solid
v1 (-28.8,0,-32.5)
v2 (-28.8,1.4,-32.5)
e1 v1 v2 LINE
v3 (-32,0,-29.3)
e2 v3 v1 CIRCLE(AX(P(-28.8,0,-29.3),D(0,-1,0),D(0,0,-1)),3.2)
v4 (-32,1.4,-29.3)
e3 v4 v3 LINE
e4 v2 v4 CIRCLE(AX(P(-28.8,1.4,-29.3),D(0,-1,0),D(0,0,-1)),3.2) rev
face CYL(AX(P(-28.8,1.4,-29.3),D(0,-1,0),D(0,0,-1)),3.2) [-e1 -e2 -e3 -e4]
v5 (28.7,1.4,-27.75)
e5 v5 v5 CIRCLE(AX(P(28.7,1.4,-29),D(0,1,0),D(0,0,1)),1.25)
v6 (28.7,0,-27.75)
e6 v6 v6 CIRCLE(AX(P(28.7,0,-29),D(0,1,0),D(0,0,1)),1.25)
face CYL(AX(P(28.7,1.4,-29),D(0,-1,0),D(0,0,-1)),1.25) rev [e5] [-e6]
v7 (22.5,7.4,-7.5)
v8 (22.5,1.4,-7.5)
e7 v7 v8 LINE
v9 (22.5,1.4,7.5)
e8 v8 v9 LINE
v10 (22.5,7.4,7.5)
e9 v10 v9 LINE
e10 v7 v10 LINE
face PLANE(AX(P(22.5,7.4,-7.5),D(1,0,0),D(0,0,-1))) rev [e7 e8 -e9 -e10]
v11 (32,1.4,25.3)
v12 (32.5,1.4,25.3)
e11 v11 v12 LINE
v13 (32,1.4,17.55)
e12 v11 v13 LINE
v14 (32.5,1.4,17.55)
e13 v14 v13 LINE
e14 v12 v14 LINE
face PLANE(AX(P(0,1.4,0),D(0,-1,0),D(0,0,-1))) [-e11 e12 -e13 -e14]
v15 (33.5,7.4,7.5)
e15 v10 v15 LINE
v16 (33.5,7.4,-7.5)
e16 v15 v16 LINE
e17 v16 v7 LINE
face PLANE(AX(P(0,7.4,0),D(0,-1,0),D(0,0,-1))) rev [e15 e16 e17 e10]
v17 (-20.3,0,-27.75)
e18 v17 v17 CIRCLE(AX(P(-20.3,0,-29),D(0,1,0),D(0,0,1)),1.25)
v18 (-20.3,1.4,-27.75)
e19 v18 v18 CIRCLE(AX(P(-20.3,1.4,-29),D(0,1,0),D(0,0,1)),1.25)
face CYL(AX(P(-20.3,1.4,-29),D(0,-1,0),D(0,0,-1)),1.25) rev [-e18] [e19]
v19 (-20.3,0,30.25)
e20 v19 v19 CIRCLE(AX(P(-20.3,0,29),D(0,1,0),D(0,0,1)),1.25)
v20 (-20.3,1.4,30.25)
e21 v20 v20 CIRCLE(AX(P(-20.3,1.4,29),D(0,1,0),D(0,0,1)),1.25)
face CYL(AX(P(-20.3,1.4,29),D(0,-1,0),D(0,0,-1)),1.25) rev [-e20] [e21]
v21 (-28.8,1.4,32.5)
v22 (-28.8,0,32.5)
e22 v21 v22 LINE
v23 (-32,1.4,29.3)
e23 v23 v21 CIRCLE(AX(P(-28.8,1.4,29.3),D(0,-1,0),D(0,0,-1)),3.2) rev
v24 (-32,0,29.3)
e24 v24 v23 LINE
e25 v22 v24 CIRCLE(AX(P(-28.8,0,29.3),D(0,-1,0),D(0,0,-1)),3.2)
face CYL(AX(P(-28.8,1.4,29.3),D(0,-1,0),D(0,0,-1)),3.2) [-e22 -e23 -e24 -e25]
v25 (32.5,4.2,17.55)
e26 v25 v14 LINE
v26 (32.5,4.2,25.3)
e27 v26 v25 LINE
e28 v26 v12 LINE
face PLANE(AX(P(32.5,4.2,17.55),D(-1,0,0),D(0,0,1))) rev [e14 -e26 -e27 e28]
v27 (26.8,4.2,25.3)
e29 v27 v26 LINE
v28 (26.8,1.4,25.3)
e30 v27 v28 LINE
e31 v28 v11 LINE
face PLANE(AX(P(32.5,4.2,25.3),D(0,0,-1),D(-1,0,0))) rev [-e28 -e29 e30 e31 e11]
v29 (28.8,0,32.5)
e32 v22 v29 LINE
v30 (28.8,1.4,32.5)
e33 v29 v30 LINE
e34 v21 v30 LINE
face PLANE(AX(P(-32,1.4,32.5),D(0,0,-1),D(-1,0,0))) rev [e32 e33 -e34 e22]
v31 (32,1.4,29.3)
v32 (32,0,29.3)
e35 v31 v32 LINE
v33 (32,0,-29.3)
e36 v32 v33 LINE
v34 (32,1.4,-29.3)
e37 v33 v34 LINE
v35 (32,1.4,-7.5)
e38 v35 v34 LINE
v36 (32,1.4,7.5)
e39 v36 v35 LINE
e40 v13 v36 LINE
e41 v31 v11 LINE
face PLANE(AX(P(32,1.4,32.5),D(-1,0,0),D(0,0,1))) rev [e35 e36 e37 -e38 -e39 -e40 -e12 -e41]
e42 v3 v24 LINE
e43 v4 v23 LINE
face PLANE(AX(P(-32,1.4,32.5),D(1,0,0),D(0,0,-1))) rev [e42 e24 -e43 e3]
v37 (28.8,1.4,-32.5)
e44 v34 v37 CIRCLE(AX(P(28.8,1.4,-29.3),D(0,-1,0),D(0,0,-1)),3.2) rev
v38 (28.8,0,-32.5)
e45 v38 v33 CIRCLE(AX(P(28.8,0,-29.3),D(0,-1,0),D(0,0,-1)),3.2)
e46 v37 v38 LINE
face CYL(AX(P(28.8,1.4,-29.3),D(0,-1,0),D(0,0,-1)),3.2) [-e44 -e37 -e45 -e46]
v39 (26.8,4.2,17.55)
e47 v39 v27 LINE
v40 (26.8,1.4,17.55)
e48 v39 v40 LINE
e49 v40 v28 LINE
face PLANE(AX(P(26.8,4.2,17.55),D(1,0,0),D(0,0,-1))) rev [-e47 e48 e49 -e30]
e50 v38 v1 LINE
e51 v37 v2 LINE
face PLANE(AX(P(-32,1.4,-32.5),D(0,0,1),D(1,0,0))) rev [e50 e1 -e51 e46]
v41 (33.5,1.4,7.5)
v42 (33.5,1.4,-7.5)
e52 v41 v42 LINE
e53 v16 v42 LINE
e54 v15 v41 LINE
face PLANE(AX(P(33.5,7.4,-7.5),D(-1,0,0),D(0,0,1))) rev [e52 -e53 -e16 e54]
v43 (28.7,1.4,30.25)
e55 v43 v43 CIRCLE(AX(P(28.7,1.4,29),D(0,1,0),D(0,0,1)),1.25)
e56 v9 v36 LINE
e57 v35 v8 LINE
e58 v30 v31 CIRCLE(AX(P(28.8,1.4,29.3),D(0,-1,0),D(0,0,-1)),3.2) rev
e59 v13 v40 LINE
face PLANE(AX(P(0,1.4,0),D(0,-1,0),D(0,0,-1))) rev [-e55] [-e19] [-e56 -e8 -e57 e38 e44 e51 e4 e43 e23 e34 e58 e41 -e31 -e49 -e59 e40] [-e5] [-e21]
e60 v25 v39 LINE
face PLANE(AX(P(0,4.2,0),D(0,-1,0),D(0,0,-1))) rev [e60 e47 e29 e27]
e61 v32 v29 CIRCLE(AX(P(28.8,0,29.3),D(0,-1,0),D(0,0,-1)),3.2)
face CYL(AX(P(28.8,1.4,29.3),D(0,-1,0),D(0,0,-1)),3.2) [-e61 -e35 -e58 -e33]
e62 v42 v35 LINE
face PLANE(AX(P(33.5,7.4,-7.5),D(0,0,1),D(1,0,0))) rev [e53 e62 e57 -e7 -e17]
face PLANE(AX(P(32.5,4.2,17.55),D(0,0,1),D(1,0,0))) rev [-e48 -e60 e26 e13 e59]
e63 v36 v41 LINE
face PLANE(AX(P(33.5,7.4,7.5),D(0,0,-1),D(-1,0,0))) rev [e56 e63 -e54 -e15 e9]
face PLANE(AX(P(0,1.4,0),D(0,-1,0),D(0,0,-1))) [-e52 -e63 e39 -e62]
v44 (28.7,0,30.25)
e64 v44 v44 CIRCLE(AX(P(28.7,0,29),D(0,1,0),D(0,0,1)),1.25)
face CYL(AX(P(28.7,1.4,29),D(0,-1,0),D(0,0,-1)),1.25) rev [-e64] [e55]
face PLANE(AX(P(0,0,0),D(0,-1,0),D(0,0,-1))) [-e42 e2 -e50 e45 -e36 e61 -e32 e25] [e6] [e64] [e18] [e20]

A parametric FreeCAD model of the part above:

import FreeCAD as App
import Part
import Sketcher
from FreeCAD import Vector


def edges_at(feature, points):
    """Names of the edges that pass closest to the given points."""
    edges = feature.Shape.Edges
    near = lambda p: min(range(len(edges)), key=lambda i: edges[i].distToShape(Part.Vertex(*p))[0])
    return sorted({f"Edge{near(p) + 1}" for p in points})

doc = App.newDocument("Part")
params = doc.addObject("Spreadsheet::Sheet", "Params")
for row, (alias, value) in enumerate([
    ("sketch1_diameter", "2.5 mm"),
    ("sketch1_width", "64 mm"),
    ("sketch1_height", "65 mm"),
    ("pad1_length", "1.4 mm"),
    ("sketch2_width", "11 mm"),
    ("sketch2_height", "15 mm"),
    ("pad2_length", "6 mm"),
    ("sketch3_width", "5.7 mm"),
    ("sketch3_height", "7.75 mm"),
    ("pad3_length", "2.8 mm"),
    ("fillet_radius", "3.2 mm"),
], start=1):
    params.set(f"A{row}", alias)
    params.set(f"B{row}", "=" + value)
    params.setAlias(f"B{row}", alias)

body = doc.addObject("PartDesign::Body", "Body")

# Sketch on XZ plane
sketch1 = doc.addObject("Sketcher::SketchObject", "Sketch")
body.addObject(sketch1)
sketch1.AttachmentSupport = (doc.XZ_Plane, [""])
sketch1.MapMode = "FlatFace"
sketch1.addGeometry([
    Part.LineSegment(Vector(-32, -32.5, 0), Vector(-32, 32.5, 0)),  # 0
    Part.LineSegment(Vector(-32, 32.5, 0), Vector(32, 32.5, 0)),  # 1
    Part.LineSegment(Vector(32, 32.5, 0), Vector(32, -32.5, 0)),  # 2
    Part.LineSegment(Vector(32, -32.5, 0), Vector(-32, -32.5, 0)),  # 3
    Part.Circle(Vector(-20.3, 29, 0), Vector(0, 0, 1), 1.25),  # 4
    Part.Circle(Vector(28.7, 29, 0), Vector(0, 0, 1), 1.25),  # 5
    Part.Circle(Vector(-20.3, -29, 0), Vector(0, 0, 1), 1.25),  # 6
    Part.Circle(Vector(28.7, -29, 0), Vector(0, 0, 1), 1.25),  # 7
], False)
sketch1.addConstraint([
    Sketcher.Constraint("Coincident", 0, 2, 1, 1),
    Sketcher.Constraint("Coincident", 1, 2, 2, 1),
    Sketcher.Constraint("Coincident", 2, 2, 3, 1),
    Sketcher.Constraint("Coincident", 3, 2, 0, 1),
    Sketcher.Constraint("Vertical", 0),
    Sketcher.Constraint("Horizontal", 1),
    Sketcher.Constraint("Vertical", 2),
    Sketcher.Constraint("Horizontal", 3),
    Sketcher.Constraint("Equal", 4, 5),
    Sketcher.Constraint("Equal", 5, 6),
    Sketcher.Constraint("Equal", 6, 7),
    Sketcher.Constraint("Symmetric", 0, 2, 2, 2, -1, 1),
    Sketcher.Constraint("Symmetric", 4, 3, 6, 3, -1),
    Sketcher.Constraint("Symmetric", 5, 3, 7, 3, -1),
    Sketcher.Constraint("Horizontal", 4, 3, 5, 3),
    Sketcher.Constraint("Diameter", 4, 2.5),
    Sketcher.Constraint("DistanceX", 1, 1, 1, 2, 64.0),
    Sketcher.Constraint("DistanceY", 0, 1, 0, 2, 65.0),
    Sketcher.Constraint("DistanceY", -1, 1, 4, 3, 29.0),
    Sketcher.Constraint("DistanceX", 4, 3, 5, 3, 49.0),
    Sketcher.Constraint("DistanceX", 4, 3, -1, 1, 20.3),
])
sketch1.setExpression("Constraints[15]", "Params.sketch1_diameter")
sketch1.setExpression("Constraints[16]", "Params.sketch1_width")
sketch1.setExpression("Constraints[17]", "Params.sketch1_height")
pad1 = doc.addObject("PartDesign::Pad", "Pad")
body.addObject(pad1)
pad1.Profile = sketch1
pad1.setExpression("Length", "Params.pad1_length")
pad1.Reversed = True

# Sketch on XZ plane
sketch2 = doc.addObject("Sketcher::SketchObject", "Sketch001")
body.addObject(sketch2)
sketch2.AttachmentSupport = (doc.XZ_Plane, [""])
sketch2.MapMode = "FlatFace"
sketch2.AttachmentOffset = App.Placement(Vector(0, 0, -1.4), App.Rotation())
sketch2.addGeometry([
    Part.LineSegment(Vector(22.5, -7.5, 0), Vector(22.5, 7.5, 0)),
    Part.LineSegment(Vector(22.5, 7.5, 0), Vector(33.5, 7.5, 0)),
    Part.LineSegment(Vector(33.5, 7.5, 0), Vector(33.5, -7.5, 0)),
    Part.LineSegment(Vector(33.5, -7.5, 0), Vector(22.5, -7.5, 0)),
], False)
sketch2.addConstraint([
    Sketcher.Constraint("Coincident", 0, 2, 1, 1),
    Sketcher.Constraint("Coincident", 1, 2, 2, 1),
    Sketcher.Constraint("Coincident", 2, 2, 3, 1),
    Sketcher.Constraint("Coincident", 3, 2, 0, 1),
    Sketcher.Constraint("Vertical", 0),
    Sketcher.Constraint("Horizontal", 1),
    Sketcher.Constraint("Vertical", 2),
    Sketcher.Constraint("Horizontal", 3),
    Sketcher.Constraint("DistanceX", 1, 1, 1, 2, 11.0),
    Sketcher.Constraint("DistanceY", 0, 1, 0, 2, 15.0),
    Sketcher.Constraint("DistanceX", -1, 1, 0, 2, 22.5),
    Sketcher.Constraint("DistanceY", -1, 1, 0, 2, 7.5),
])
sketch2.setExpression("Constraints[8]", "Params.sketch2_width")
sketch2.setExpression("Constraints[9]", "Params.sketch2_height")
pad2 = doc.addObject("PartDesign::Pad", "Pad001")
body.addObject(pad2)
pad2.Profile = sketch2
pad2.setExpression("Length", "Params.pad2_length")
pad2.Reversed = True

# Sketch on XZ plane
sketch3 = doc.addObject("Sketcher::SketchObject", "Sketch002")
body.addObject(sketch3)
sketch3.AttachmentSupport = (doc.XZ_Plane, [""])
sketch3.MapMode = "FlatFace"
sketch3.AttachmentOffset = App.Placement(Vector(0, 0, -1.4), App.Rotation())
sketch3.addGeometry([
    Part.LineSegment(Vector(26.8, 17.55, 0), Vector(26.8, 25.3, 0)),
    Part.LineSegment(Vector(26.8, 25.3, 0), Vector(32.5, 25.3, 0)),
    Part.LineSegment(Vector(32.5, 25.3, 0), Vector(32.5, 17.55, 0)),
    Part.LineSegment(Vector(32.5, 17.55, 0), Vector(26.8, 17.55, 0)),
], False)
sketch3.addConstraint([
    Sketcher.Constraint("Coincident", 0, 2, 1, 1),
    Sketcher.Constraint("Coincident", 1, 2, 2, 1),
    Sketcher.Constraint("Coincident", 2, 2, 3, 1),
    Sketcher.Constraint("Coincident", 3, 2, 0, 1),
    Sketcher.Constraint("Vertical", 0),
    Sketcher.Constraint("Horizontal", 1),
    Sketcher.Constraint("Vertical", 2),
    Sketcher.Constraint("Horizontal", 3),
    Sketcher.Constraint("DistanceX", 1, 1, 1, 2, 5.7),
    Sketcher.Constraint("DistanceY", 0, 1, 0, 2, 7.75),
    Sketcher.Constraint("DistanceX", -1, 1, 0, 2, 26.8),
    Sketcher.Constraint("DistanceY", -1, 1, 0, 2, 25.3),
])
sketch3.setExpression("Constraints[8]", "Params.sketch3_width")
sketch3.setExpression("Constraints[9]", "Params.sketch3_height")
pad3 = doc.addObject("PartDesign::Pad", "Pad002")
body.addObject(pad3)
pad3.Profile = sketch3
pad3.setExpression("Length", "Params.pad3_length")
pad3.Reversed = True
doc.recompute()

fillet = doc.addObject("PartDesign::Fillet", "Fillet")
body.addObject(fillet)
fillet.Base = (pad3, edges_at(pad3, [
    (32, 0.7, 32.5),
    (-32, 0.7, 32.5),
    (-32, 0.7, -32.5),
    (32, 0.7, -32.5),
]))
fillet.setExpression("Radius", "Params.fillet_radius")

doc.recompute()
